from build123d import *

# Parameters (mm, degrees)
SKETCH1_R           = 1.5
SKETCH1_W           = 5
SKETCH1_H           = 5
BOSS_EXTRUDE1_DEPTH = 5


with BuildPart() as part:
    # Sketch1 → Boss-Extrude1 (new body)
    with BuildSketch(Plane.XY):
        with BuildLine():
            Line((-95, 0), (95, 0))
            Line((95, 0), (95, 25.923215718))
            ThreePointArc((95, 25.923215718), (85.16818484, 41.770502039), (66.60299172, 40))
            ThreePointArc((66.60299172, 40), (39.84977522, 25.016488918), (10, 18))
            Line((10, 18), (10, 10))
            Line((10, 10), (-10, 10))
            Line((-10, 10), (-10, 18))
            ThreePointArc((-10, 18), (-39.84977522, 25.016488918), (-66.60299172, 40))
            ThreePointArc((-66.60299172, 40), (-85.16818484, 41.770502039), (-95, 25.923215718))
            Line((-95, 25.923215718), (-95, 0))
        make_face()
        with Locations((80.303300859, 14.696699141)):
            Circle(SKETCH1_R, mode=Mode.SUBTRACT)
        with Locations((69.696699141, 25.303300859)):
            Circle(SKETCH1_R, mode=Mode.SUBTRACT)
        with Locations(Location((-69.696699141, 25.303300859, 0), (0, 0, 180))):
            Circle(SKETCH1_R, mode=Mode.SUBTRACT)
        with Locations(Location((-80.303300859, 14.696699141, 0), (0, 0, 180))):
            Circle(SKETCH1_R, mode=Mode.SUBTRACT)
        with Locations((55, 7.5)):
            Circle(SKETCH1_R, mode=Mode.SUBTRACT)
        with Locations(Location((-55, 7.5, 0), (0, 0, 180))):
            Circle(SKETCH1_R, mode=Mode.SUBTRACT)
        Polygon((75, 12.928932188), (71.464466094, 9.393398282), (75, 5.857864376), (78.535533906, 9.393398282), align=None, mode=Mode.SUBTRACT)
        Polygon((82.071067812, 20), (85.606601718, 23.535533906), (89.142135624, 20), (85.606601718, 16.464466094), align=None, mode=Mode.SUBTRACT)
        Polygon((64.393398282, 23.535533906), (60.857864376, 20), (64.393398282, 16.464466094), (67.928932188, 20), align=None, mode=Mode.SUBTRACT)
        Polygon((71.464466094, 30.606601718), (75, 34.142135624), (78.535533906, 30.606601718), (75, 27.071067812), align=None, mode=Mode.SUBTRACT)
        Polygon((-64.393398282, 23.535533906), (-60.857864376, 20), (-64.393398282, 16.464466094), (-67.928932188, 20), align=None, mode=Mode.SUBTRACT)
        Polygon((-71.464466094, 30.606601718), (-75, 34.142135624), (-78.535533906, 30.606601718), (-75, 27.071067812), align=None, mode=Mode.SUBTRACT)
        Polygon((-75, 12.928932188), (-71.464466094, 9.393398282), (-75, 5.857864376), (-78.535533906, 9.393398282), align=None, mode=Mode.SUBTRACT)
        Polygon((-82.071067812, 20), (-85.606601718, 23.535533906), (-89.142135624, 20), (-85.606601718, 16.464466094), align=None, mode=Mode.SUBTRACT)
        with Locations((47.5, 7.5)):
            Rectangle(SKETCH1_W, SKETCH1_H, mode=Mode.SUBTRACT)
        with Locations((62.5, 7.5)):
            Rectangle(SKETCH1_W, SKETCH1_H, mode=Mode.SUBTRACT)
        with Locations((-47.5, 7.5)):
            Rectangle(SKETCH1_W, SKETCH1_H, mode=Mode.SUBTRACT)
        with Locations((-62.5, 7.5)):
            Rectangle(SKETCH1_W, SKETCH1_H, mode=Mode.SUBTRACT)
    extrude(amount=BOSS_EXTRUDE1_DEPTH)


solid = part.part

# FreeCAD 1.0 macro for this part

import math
import FreeCAD as App
import Part
import Sketcher
from FreeCAD import Vector
Q = App.Units.Quantity

doc = App.newDocument("Part")
body = doc.addObject("PartDesign::Body", "Body")

# Sketch on XY plane
sketch1 = body.newObject("Sketcher::SketchObject", "Sketch")
sketch1.AttachmentSupport = (doc.getObject("XY_Plane"), [""])
sketch1.MapMode = "FlatFace"
sketch1.addGeometry(Part.LineSegment(Vector(-95, 0, 0), Vector(95, 0, 0)), False)
sketch1.addGeometry(Part.LineSegment(Vector(95, 0, 0), Vector(95, 25.9, 0)), False)
sketch1.addGeometry(Part.ArcOfCircle(Part.Circle(Vector(77.3, 25.9, 0), Vector(0, 0, 1), 17.7), math.radians(0), math.radians(127)), False)
sketch1.addGeometry(Part.ArcOfCircle(Part.Circle(Vector(0, 127.5, 0), Vector(0, 0, 1), 110), math.radians(-85), math.radians(-53)), False)
sketch1.addGeometry(Part.LineSegment(Vector(10, 18, 0), Vector(10, 10, 0)), False)
sketch1.addGeometry(Part.LineSegment(Vector(10, 10, 0), Vector(-10, 10, 0)), False)
sketch1.addGeometry(Part.LineSegment(Vector(-10, 10, 0), Vector(-10, 18, 0)), False)
sketch1.addGeometry(Part.ArcOfCircle(Part.Circle(Vector(0, 127.5, 0), Vector(0, 0, 1), 110), math.radians(-127), math.radians(-95)), False)
sketch1.addGeometry(Part.ArcOfCircle(Part.Circle(Vector(-77.3, 25.9, 0), Vector(0, 0, 1), 17.7), math.radians(53), math.radians(180)), False)
sketch1.addGeometry(Part.LineSegment(Vector(-95, 25.9, 0), Vector(-95, 0, 0)), False)
sketch1.addGeometry(Part.LineSegment(Vector(-60, 5, 0), Vector(-65, 5, 0)), False)
sketch1.addGeometry(Part.LineSegment(Vector(-65, 5, 0), Vector(-65, 10, 0)), False)
sketch1.addGeometry(Part.LineSegment(Vector(-65, 10, 0), Vector(-60, 10, 0)), False)
sketch1.addGeometry(Part.LineSegment(Vector(-60, 10, 0), Vector(-60, 5, 0)), False)
sketch1.addGeometry(Part.Circle(Vector(-55, 7.5, 0), Vector(0, 0, 1), 1.5), False)
sketch1.addGeometry(Part.LineSegment(Vector(-45, 5, 0), Vector(-50, 5, 0)), False)
sketch1.addGeometry(Part.LineSegment(Vector(-50, 5, 0), Vector(-50, 10, 0)), False)
sketch1.addGeometry(Part.LineSegment(Vector(-50, 10, 0), Vector(-45, 10, 0)), False)
sketch1.addGeometry(Part.LineSegment(Vector(-45, 10, 0), Vector(-45, 5, 0)), False)
sketch1.addGeometry(Part.LineSegment(Vector(-78.5, 9.4, 0), Vector(-75, 12.9, 0)), False)
sketch1.addGeometry(Part.LineSegment(Vector(-75, 12.9, 0), Vector(-71.5, 9.4, 0)), False)
sketch1.addGeometry(Part.LineSegment(Vector(-71.5, 9.4, 0), Vector(-75, 5.9, 0)), False)
sketch1.addGeometry(Part.LineSegment(Vector(-75, 5.9, 0), Vector(-78.5, 9.4, 0)), False)
sketch1.addGeometry(Part.Circle(Vector(-80.3, 14.7, 0), Vector(0, 0, 1), 1.5), False)
sketch1.addGeometry(Part.LineSegment(Vector(50, 5, 0), Vector(45, 5, 0)), False)
sketch1.addGeometry(Part.LineSegment(Vector(45, 5, 0), Vector(45, 10, 0)), False)
sketch1.addGeometry(Part.LineSegment(Vector(45, 10, 0), Vector(50, 10, 0)), False)
sketch1.addGeometry(Part.LineSegment(Vector(50, 10, 0), Vector(50, 5, 0)), False)
sketch1.addGeometry(Part.Circle(Vector(55, 7.5, 0), Vector(0, 0, 1), 1.5), False)
sketch1.addGeometry(Part.LineSegment(Vector(65, 5, 0), Vector(60, 5, 0)), False)
sketch1.addGeometry(Part.LineSegment(Vector(60, 5, 0), Vector(60, 10, 0)), False)
sketch1.addGeometry(Part.LineSegment(Vector(60, 10, 0), Vector(65, 10, 0)), False)
sketch1.addGeometry(Part.LineSegment(Vector(65, 10, 0), Vector(65, 5, 0)), False)
sketch1.addGeometry(Part.LineSegment(Vector(71.5, 9.4, 0), Vector(75, 12.9, 0)), False)
sketch1.addGeometry(Part.LineSegment(Vector(75, 12.9, 0), Vector(78.5, 9.4, 0)), False)
sketch1.addGeometry(Part.LineSegment(Vector(78.5, 9.4, 0), Vector(75, 5.9, 0)), False)
sketch1.addGeometry(Part.LineSegment(Vector(75, 5.9, 0), Vector(71.5, 9.4, 0)), False)
sketch1.addGeometry(Part.Circle(Vector(80.3, 14.7, 0), Vector(0, 0, 1), 1.5), False)
sketch1.addGeometry(Part.LineSegment(Vector(-85.6, 23.5, 0), Vector(-82.1, 20, 0)), False)
sketch1.addGeometry(Part.LineSegment(Vector(-82.1, 20, 0), Vector(-85.6, 16.5, 0)), False)
sketch1.addGeometry(Part.LineSegment(Vector(-85.6, 16.5, 0), Vector(-89.1, 20, 0)), False)
sketch1.addGeometry(Part.LineSegment(Vector(-89.1, 20, 0), Vector(-85.6, 23.5, 0)), False)
sketch1.addGeometry(Part.LineSegment(Vector(-67.9, 20, 0), Vector(-64.4, 23.5, 0)), False)
sketch1.addGeometry(Part.LineSegment(Vector(-64.4, 23.5, 0), Vector(-60.9, 20, 0)), False)
sketch1.addGeometry(Part.LineSegment(Vector(-60.9, 20, 0), Vector(-64.4, 16.5, 0)), False)
sketch1.addGeometry(Part.LineSegment(Vector(-64.4, 16.5, 0), Vector(-67.9, 20, 0)), False)
sketch1.addGeometry(Part.Circle(Vector(-69.7, 25.3, 0), Vector(0, 0, 1), 1.5), False)
sketch1.addGeometry(Part.LineSegment(Vector(-75, 34.1, 0), Vector(-71.5, 30.6, 0)), False)
sketch1.addGeometry(Part.LineSegment(Vector(-71.5, 30.6, 0), Vector(-75, 27.1, 0)), False)
sketch1.addGeometry(Part.LineSegment(Vector(-75, 27.1, 0), Vector(-78.5, 30.6, 0)), False)
sketch1.addGeometry(Part.LineSegment(Vector(-78.5, 30.6, 0), Vector(-75, 34.1, 0)), False)
sketch1.addGeometry(Part.LineSegment(Vector(60.9, 20, 0), Vector(64.4, 23.5, 0)), False)
sketch1.addGeometry(Part.LineSegment(Vector(64.4, 23.5, 0), Vector(67.9, 20, 0)), False)
sketch1.addGeometry(Part.LineSegment(Vector(67.9, 20, 0), Vector(64.4, 16.5, 0)), False)
sketch1.addGeometry(Part.LineSegment(Vector(64.4, 16.5, 0), Vector(60.9, 20, 0)), False)
sketch1.addGeometry(Part.LineSegment(Vector(85.6, 16.5, 0), Vector(82.1, 20, 0)), False)
sketch1.addGeometry(Part.LineSegment(Vector(82.1, 20, 0), Vector(85.6, 23.5, 0)), False)
sketch1.addGeometry(Part.LineSegment(Vector(85.6, 23.5, 0), Vector(89.1, 20, 0)), False)
sketch1.addGeometry(Part.LineSegment(Vector(89.1, 20, 0), Vector(85.6, 16.5, 0)), False)
sketch1.addGeometry(Part.Circle(Vector(69.7, 25.3, 0), Vector(0, 0, 1), 1.5), False)
sketch1.addGeometry(Part.LineSegment(Vector(75, 27.1, 0), Vector(71.5, 30.6, 0)), False)
sketch1.addGeometry(Part.LineSegment(Vector(71.5, 30.6, 0), Vector(75, 34.1, 0)), False)
sketch1.addGeometry(Part.LineSegment(Vector(75, 34.1, 0), Vector(78.5, 30.6, 0)), False)
sketch1.addGeometry(Part.LineSegment(Vector(78.5, 30.6, 0), Vector(75, 27.1, 0)), False)
sketch1.addConstraint(Sketcher.Constraint("Coincident", 0, 2, 1, 1))
sketch1.addConstraint(Sketcher.Constraint("Tangent", 1, 2, 2, 1))
sketch1.addConstraint(Sketcher.Constraint("Tangent", 2, 2, 3, 2))
sketch1.addConstraint(Sketcher.Constraint("Coincident", 3, 1, 4, 1))
sketch1.addConstraint(Sketcher.Constraint("Coincident", 4, 2, 5, 1))
sketch1.addConstraint(Sketcher.Constraint("Coincident", 5, 2, 6, 1))
sketch1.addConstraint(Sketcher.Constraint("Coincident", 6, 2, 7, 2))
sketch1.addConstraint(Sketcher.Constraint("Tangent", 7, 1, 8, 1))
sketch1.addConstraint(Sketcher.Constraint("Tangent", 8, 2, 9, 1))
sketch1.addConstraint(Sketcher.Constraint("Coincident", 9, 2, 0, 1))
sketch1.addConstraint(Sketcher.Constraint("Coincident", 10, 2, 11, 1))
sketch1.addConstraint(Sketcher.Constraint("Coincident", 11, 2, 12, 1))
sketch1.addConstraint(Sketcher.Constraint("Coincident", 12, 2, 13, 1))
sketch1.addConstraint(Sketcher.Constraint("Coincident", 13, 2, 10, 1))
sketch1.addConstraint(Sketcher.Constraint("Coincident", 15, 2, 16, 1))
sketch1.addConstraint(Sketcher.Constraint("Coincident", 16, 2, 17, 1))
sketch1.addConstraint(Sketcher.Constraint("Coincident", 17, 2, 18, 1))
sketch1.addConstraint(Sketcher.Constraint("Coincident", 18, 2, 15, 1))
sketch1.addConstraint(Sketcher.Constraint("Coincident", 19, 2, 20, 1))
sketch1.addConstraint(Sketcher.Constraint("Coincident", 20, 2, 21, 1))
sketch1.addConstraint(Sketcher.Constraint("Coincident", 21, 2, 22, 1))
sketch1.addConstraint(Sketcher.Constraint("Coincident", 22, 2, 19, 1))
sketch1.addConstraint(Sketcher.Constraint("Coincident", 24, 2, 25, 1))
sketch1.addConstraint(Sketcher.Constraint("Coincident", 25, 2, 26, 1))
sketch1.addConstraint(Sketcher.Constraint("Coincident", 26, 2, 27, 1))
sketch1.addConstraint(Sketcher.Constraint("Coincident", 27, 2, 24, 1))
sketch1.addConstraint(Sketcher.Constraint("Coincident", 29, 2, 30, 1))
sketch1.addConstraint(Sketcher.Constraint("Coincident", 30, 2, 31, 1))
sketch1.addConstraint(Sketcher.Constraint("Coincident", 31, 2, 32, 1))
sketch1.addConstraint(Sketcher.Constraint("Coincident", 32, 2, 29, 1))
sketch1.addConstraint(Sketcher.Constraint("Coincident", 33, 2, 34, 1))
sketch1.addConstraint(Sketcher.Constraint("Coincident", 34, 2, 35, 1))
sketch1.addConstraint(Sketcher.Constraint("Coincident", 35, 2, 36, 1))
sketch1.addConstraint(Sketcher.Constraint("Coincident", 36, 2, 33, 1))
sketch1.addConstraint(Sketcher.Constraint("Coincident", 38, 2, 39, 1))
sketch1.addConstraint(Sketcher.Constraint("Coincident", 39, 2, 40, 1))
sketch1.addConstraint(Sketcher.Constraint("Coincident", 40, 2, 41, 1))
sketch1.addConstraint(Sketcher.Constraint("Coincident", 41, 2, 38, 1))
sketch1.addConstraint(Sketcher.Constraint("Coincident", 42, 2, 43, 1))
sketch1.addConstraint(Sketcher.Constraint("Coincident", 43, 2, 44, 1))
sketch1.addConstraint(Sketcher.Constraint("Coincident", 44, 2, 45, 1))
sketch1.addConstraint(Sketcher.Constraint("Coincident", 45, 2, 42, 1))
sketch1.addConstraint(Sketcher.Constraint("Coincident", 47, 2, 48, 1))
sketch1.addConstraint(Sketcher.Constraint("Coincident", 48, 2, 49, 1))
sketch1.addConstraint(Sketcher.Constraint("Coincident", 49, 2, 50, 1))
sketch1.addConstraint(Sketcher.Constraint("Coincident", 50, 2, 47, 1))
sketch1.addConstraint(Sketcher.Constraint("Coincident", 51, 2, 52, 1))
sketch1.addConstraint(Sketcher.Constraint("Coincident", 52, 2, 53, 1))
sketch1.addConstraint(Sketcher.Constraint("Coincident", 53, 2, 54, 1))
sketch1.addConstraint(Sketcher.Constraint("Coincident", 54, 2, 51, 1))
sketch1.addConstraint(Sketcher.Constraint("Coincident", 55, 2, 56, 1))
sketch1.addConstraint(Sketcher.Constraint("Coincident", 56, 2, 57, 1))
sketch1.addConstraint(Sketcher.Constraint("Coincident", 57, 2, 58, 1))
sketch1.addConstraint(Sketcher.Constraint("Coincident", 58, 2, 55, 1))
sketch1.addConstraint(Sketcher.Constraint("Coincident", 60, 2, 61, 1))
sketch1.addConstraint(Sketcher.Constraint("Coincident", 61, 2, 62, 1))
sketch1.addConstraint(Sketcher.Constraint("Coincident", 62, 2, 63, 1))
sketch1.addConstraint(Sketcher.Constraint("Coincident", 63, 2, 60, 1))
sketch1.addConstraint(Sketcher.Constraint("Horizontal", 0))
sketch1.addConstraint(Sketcher.Constraint("Vertical", 1))
sketch1.addConstraint(Sketcher.Constraint("Vertical", 4))
sketch1.addConstraint(Sketcher.Constraint("Horizontal", 5))
sketch1.addConstraint(Sketcher.Constraint("Vertical", 6))
sketch1.addConstraint(Sketcher.Constraint("Vertical", 9))
sketch1.addConstraint(Sketcher.Constraint("Horizontal", 10))
sketch1.addConstraint(Sketcher.Constraint("Vertical", 11))
sketch1.addConstraint(Sketcher.Constraint("Horizontal", 12))
sketch1.addConstraint(Sketcher.Constraint("Vertical", 13))
sketch1.addConstraint(Sketcher.Constraint("Horizontal", 15))
sketch1.addConstraint(Sketcher.Constraint("Vertical", 16))
sketch1.addConstraint(Sketcher.Constraint("Horizontal", 17))
sketch1.addConstraint(Sketcher.Constraint("Vertical", 18))
sketch1.addConstraint(Sketcher.Constraint("Horizontal", 24))
sketch1.addConstraint(Sketcher.Constraint("Vertical", 25))
sketch1.addConstraint(Sketcher.Constraint("Horizontal", 26))
sketch1.addConstraint(Sketcher.Constraint("Vertical", 27))
sketch1.addConstraint(Sketcher.Constraint("Horizontal", 29))
sketch1.addConstraint(Sketcher.Constraint("Vertical", 30))
sketch1.addConstraint(Sketcher.Constraint("Horizontal", 31))
sketch1.addConstraint(Sketcher.Constraint("Vertical", 32))
sketch1.addConstraint(Sketcher.Constraint("Coincident", 7, 3, 3, 3))
sketch1.addConstraint(Sketcher.Constraint("Equal", 3, 7))
sketch1.addConstraint(Sketcher.Constraint("Equal", 2, 8))
sketch1.addConstraint(Sketcher.Constraint("Equal", 14, 23))
sketch1.addConstraint(Sketcher.Constraint("Equal", 23, 28))
sketch1.addConstraint(Sketcher.Constraint("Equal", 28, 37))
sketch1.addConstraint(Sketcher.Constraint("Equal", 37, 46))
sketch1.addConstraint(Sketcher.Constraint("Equal", 46, 59))
sketch1.addConstraint(Sketcher.Constraint("Symmetric", 0, 2, 9, 2, -1, 1))
sketch1.addConstraint(Sketcher.Constraint("Symmetric", 14, 3, 28, 3, -2))
sketch1.addConstraint(Sketcher.Constraint("Symmetric", 23, 3, 37, 3, -2))
sketch1.addConstraint(Sketcher.Constraint("Symmetric", 46, 3, 59, 3, -2))
sketch1.addConstraint(Sketcher.Constraint("Symmetric", 3, 1, 6, 2, -2))
sketch1.addConstraint(Sketcher.Constraint("Symmetric", 18, 2, 24, 2, -2))
sketch1.addConstraint(Sketcher.Constraint("Symmetric", 16, 2, 26, 2, -2))
sketch1.addConstraint(Sketcher.Constraint("Symmetric", 13, 2, 29, 2, -2))
sketch1.addConstraint(Sketcher.Constraint("Symmetric", 11, 2, 31, 2, -2))
sketch1.addConstraint(Sketcher.Constraint("Symmetric", 19, 2, 33, 2, -2))
sketch1.addConstraint(Sketcher.Constraint("Symmetric", 22, 2, 34, 2, -2))
sketch1.addConstraint(Sketcher.Constraint("Symmetric", 21, 2, 35, 2, -2))
sketch1.addConstraint(Sketcher.Constraint("Symmetric", 20, 2, 36, 2, -2))
sketch1.addConstraint(Sketcher.Constraint("Symmetric", 42, 2, 51, 2, -2))
sketch1.addConstraint(Sketcher.Constraint("Symmetric", 45, 2, 52, 2, -2))
sketch1.addConstraint(Sketcher.Constraint("Symmetric", 44, 2, 53, 2, -2))
sketch1.addConstraint(Sketcher.Constraint("Symmetric", 43, 2, 54, 2, -2))
sketch1.addConstraint(Sketcher.Constraint("Symmetric", 38, 2, 55, 2, -2))
sketch1.addConstraint(Sketcher.Constraint("Symmetric", 41, 2, 56, 2, -2))
sketch1.addConstraint(Sketcher.Constraint("Symmetric", 40, 2, 57, 2, -2))
sketch1.addConstraint(Sketcher.Constraint("Symmetric", 39, 2, 58, 2, -2))
sketch1.addConstraint(Sketcher.Constraint("Symmetric", 47, 2, 60, 2, -2))
sketch1.addConstraint(Sketcher.Constraint("Symmetric", 50, 2, 61, 2, -2))
sketch1.addConstraint(Sketcher.Constraint("Symmetric", 49, 2, 62, 2, -2))
sketch1.addConstraint(Sketcher.Constraint("Symmetric", 48, 2, 63, 2, -2))
sketch1.addConstraint(Sketcher.Constraint("Perpendicular", 19, 20))
sketch1.addConstraint(Sketcher.Constraint("Perpendicular", 20, 21))
sketch1.addConstraint(Sketcher.Constraint("Perpendicular", 21, 22))
sketch1.addConstraint(Sketcher.Constraint("Perpendicular", 22, 33))
sketch1.addConstraint(Sketcher.Constraint("Parallel", 36, 38))
sketch1.addConstraint(Sketcher.Constraint("Perpendicular", 38, 39))
sketch1.addConstraint(Sketcher.Constraint("Perpendicular", 39, 40))
sketch1.addConstraint(Sketcher.Constraint("Perpendicular", 40, 41))
sketch1.addConstraint(Sketcher.Constraint("Parallel", 41, 42))
sketch1.addConstraint(Sketcher.Constraint("Perpendicular", 42, 43))
sketch1.addConstraint(Sketcher.Constraint("Perpendicular", 43, 44))
sketch1.addConstraint(Sketcher.Constraint("Perpendicular", 44, 45))
sketch1.addConstraint(Sketcher.Constraint("Parallel", 45, 47))
sketch1.addConstraint(Sketcher.Constraint("Perpendicular", 47, 48))
sketch1.addConstraint(Sketcher.Constraint("Perpendicular", 48, 49))
sketch1.addConstraint(Sketcher.Constraint("Perpendicular", 49, 50))
sketch1.addConstraint(Sketcher.Constraint("Horizontal", 5, 2, 11, 2))
sketch1.addConstraint(Sketcher.Constraint("Horizontal", 13, 2, 15, 2))
sketch1.addConstraint(Sketcher.Constraint("Horizontal", 12, 2, 16, 2))
sketch1.addConstraint(Sketcher.Constraint("Horizontal", 20, 2, 22, 2))
sketch1.addConstraint(Sketcher.Constraint("Horizontal", 38, 2, 40, 2))
sketch1.addConstraint(Sketcher.Constraint("Horizontal", 41, 2, 42, 2))
sketch1.addConstraint(Sketcher.Constraint("Horizontal", 40, 2, 43, 2))
sketch1.addConstraint(Sketcher.Constraint("Horizontal", 39, 2, 44, 2))
sketch1.addConstraint(Sketcher.Constraint("Horizontal", 47, 2, 49, 2))
sketch1.addConstraint(Sketcher.Constraint("Vertical", 20, 2, 47, 2))
sketch1.addConstraint(Sketcher.Constraint("Vertical", 21, 2, 48, 2))
sketch1.addConstraint(Sketcher.Constraint("Equal", 12, 15))
sketch1.addConstraint(Sketcher.Constraint("Equal", 31, 11))
sketch1.addConstraint(Sketcher.Constraint("Equal", 36, 38))
sketch1.addConstraint(Sketcher.Constraint("Diameter", 14, Q("3 mm")))
sketch1.addConstraint(Sketcher.Constraint("Radius", 3, Q("110 mm")))
sketch1.addConstraint(Sketcher.Constraint("DistanceX", 0, 1, 0, 2, Q("190 mm")))
sketch1.addConstraint(Sketcher.Constraint("DistanceX", 5, 2, 5, 1, Q("20 mm")))
sketch1.addConstraint(Sketcher.Constraint("DistanceX", 10, 2, 10, 1, Q("5 mm")))
sketch1.addConstraint(Sketcher.Constraint("DistanceY", 4, 2, 4, 1, Q("8 mm")))
sketch1.addConstraint(Sketcher.Constraint("Distance", 19, Q("5 mm")))
sketch1.addConstraint(Sketcher.Constraint("DistanceX", 14, 3, -1, 1, Q("55 mm")))
sketch1.addConstraint(Sketcher.Constraint("DistanceY", -1, 1, 2, 2, Q("40 mm")))
sketch1.addConstraint(Sketcher.Constraint("DistanceY", -1, 1, 3, 1, Q("18 mm")))
sketch1.addConstraint(Sketcher.Constraint("DistanceX", 10, 2, -1, 1, Q("65 mm")))
sketch1.addConstraint(Sketcher.Constraint("DistanceX", 15, 2, -1, 1, Q("50 mm")))
sketch1.addConstraint(Sketcher.Constraint("DistanceX", 19, 2, -1, 1, Q("75 mm")))
sketch1.addConstraint(Sketcher.Constraint("DistanceY", -1, 1, 38, 2, Q("20 mm")))
sketch1.addConstraint(Sketcher.Constraint("DistanceY", -1, 1, 14, 3, Q("7.5 mm")))
sketch1.addConstraint(Sketcher.Constraint("DistanceX", 23, 3, -1, 1, Q("80.303301 mm")))
sketch1.addConstraint(Sketcher.Constraint("DistanceY", -1, 1, 23, 3, Q("14.696699 mm")))
sketch1.addConstraint(Sketcher.Constraint("DistanceX", 46, 3, -1, 1, Q("69.696699 mm")))
sketch1.addConstraint(Sketcher.Constraint("DistanceY", -1, 1, 46, 3, Q("25.303301 mm")))
sketch1.addConstraint(Sketcher.Constraint("DistanceY", -1, 1, 20, 2, Q("9.393398 mm")))
sketch1.addConstraint(Sketcher.Constraint("DistanceX", 39, 2, -1, 1, Q("85.606602 mm")))
sketch1.addConstraint(Sketcher.Constraint("DistanceX", 42, 2, -1, 1, Q("64.393398 mm")))
sketch1.addConstraint(Sketcher.Constraint("DistanceY", -1, 1, 47, 2, Q("30.606602 mm")))
pad1 = body.newObject("PartDesign::Pad", "Pad")
pad1.Profile = sketch1
pad1.Length = 5

doc.recompute()
